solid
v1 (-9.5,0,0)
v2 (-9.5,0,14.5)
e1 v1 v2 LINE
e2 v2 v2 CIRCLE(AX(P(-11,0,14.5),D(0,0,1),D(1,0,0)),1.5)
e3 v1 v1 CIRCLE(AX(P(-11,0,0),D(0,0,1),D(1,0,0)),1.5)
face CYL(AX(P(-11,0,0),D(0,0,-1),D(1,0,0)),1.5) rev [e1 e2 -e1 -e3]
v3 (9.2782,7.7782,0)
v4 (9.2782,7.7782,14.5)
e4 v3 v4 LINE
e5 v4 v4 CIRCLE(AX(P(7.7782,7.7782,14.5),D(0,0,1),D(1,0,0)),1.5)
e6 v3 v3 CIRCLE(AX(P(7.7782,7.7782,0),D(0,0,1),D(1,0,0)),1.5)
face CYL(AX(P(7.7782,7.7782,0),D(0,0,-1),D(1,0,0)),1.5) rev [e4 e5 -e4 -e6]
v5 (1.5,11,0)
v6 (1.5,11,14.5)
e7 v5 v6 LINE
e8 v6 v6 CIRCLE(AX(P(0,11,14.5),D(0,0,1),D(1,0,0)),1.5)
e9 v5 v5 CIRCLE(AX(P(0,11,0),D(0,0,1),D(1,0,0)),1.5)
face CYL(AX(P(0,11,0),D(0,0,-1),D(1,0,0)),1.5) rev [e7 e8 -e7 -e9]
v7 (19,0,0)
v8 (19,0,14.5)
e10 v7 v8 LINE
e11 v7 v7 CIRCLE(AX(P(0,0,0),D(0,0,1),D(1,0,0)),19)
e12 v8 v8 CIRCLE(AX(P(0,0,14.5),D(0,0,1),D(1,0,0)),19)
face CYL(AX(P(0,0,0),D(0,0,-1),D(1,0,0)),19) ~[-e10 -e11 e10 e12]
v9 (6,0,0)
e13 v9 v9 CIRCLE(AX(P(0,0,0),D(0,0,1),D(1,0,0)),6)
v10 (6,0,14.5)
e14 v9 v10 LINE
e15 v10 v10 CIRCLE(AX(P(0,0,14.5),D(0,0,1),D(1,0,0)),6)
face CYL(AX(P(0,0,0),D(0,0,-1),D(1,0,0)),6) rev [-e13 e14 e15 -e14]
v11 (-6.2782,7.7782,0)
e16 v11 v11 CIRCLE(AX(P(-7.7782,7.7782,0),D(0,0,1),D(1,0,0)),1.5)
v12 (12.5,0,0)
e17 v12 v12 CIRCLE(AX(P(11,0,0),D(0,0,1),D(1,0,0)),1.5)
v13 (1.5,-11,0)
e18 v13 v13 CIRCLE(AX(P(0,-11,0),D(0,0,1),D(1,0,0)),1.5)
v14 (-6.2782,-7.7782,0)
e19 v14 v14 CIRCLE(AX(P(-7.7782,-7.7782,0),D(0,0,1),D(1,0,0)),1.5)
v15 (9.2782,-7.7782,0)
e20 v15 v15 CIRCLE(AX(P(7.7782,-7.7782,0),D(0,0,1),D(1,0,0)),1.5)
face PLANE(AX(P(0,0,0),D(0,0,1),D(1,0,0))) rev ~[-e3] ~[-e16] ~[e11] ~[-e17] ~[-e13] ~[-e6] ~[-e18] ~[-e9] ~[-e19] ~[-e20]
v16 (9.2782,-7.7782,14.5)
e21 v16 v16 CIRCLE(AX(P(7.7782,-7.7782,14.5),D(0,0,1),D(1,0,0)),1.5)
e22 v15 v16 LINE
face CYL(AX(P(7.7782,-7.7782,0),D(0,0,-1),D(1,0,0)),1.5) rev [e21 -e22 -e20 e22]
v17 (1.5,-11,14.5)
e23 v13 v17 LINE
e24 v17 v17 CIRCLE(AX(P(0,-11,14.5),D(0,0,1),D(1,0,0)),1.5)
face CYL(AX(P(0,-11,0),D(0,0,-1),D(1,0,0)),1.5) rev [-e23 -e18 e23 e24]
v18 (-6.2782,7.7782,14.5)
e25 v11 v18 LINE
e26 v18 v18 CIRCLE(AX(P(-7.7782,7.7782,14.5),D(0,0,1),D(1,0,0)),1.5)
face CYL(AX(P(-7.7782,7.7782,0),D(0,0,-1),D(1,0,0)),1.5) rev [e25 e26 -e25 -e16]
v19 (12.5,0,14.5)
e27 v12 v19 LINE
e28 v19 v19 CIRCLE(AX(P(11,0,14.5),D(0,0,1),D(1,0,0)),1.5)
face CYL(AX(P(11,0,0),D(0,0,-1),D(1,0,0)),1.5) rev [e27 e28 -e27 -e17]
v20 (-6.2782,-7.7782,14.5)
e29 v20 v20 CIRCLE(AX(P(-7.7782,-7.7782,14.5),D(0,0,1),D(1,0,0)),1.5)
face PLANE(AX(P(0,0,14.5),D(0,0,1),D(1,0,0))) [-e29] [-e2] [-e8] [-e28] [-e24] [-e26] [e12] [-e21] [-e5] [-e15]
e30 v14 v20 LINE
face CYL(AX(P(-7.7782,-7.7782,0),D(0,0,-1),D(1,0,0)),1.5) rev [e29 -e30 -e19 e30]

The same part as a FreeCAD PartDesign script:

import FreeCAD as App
import Part
import Sketcher
from FreeCAD import Vector

doc = App.newDocument("Part")
params = doc.addObject("Spreadsheet::Sheet", "Params")
for row, (alias, value) in enumerate([
    ("sketch1_diameter", "38 mm"),
    ("sketch1_diameter2", "3 mm"),
    ("sketch1_diameter3", "12 mm"),
    ("pad1_length", "14.5 mm"),
], start=1):
    params.set(f"A{row}", alias)
    params.set(f"B{row}", "=" + value)
    params.setAlias(f"B{row}", alias)

body = doc.addObject("PartDesign::Body", "Body")

sketch1 = body.newObject("Sketcher::SketchObject", "Sketch")
sketch1.AttachmentSupport = (doc.getObject("XY_Plane"), [""])
sketch1.MapMode = "FlatFace"
sketch1.addGeometry(Part.Circle(Vector(0, 0, 0), Vector(0, 0, 1), 19), False)
sketch1.addGeometry(Part.Circle(Vector(-7.8, -7.8, 0), Vector(0, 0, 1), 1.5), False)
sketch1.addGeometry(Part.Circle(Vector(0, -11, 0), Vector(0, 0, 1), 1.5), False)
sketch1.addGeometry(Part.Circle(Vector(7.8, -7.8, 0), Vector(0, 0, 1), 1.5), False)
sketch1.addGeometry(Part.Circle(Vector(-11, 0, 0), Vector(0, 0, 1), 1.5), False)
sketch1.addGeometry(Part.Circle(Vector(-7.8, 7.8, 0), Vector(0, 0, 1), 1.5), False)
sketch1.addGeometry(Part.Circle(Vector(0, 0, 0), Vector(0, 0, 1), 6), False)
sketch1.addGeometry(Part.Circle(Vector(7.8, 7.8, 0), Vector(0, 0, 1), 1.5), False)
sketch1.addGeometry(Part.Circle(Vector(11, 0, 0), Vector(0, 0, 1), 1.5), False)
sketch1.addGeometry(Part.Circle(Vector(0, 11, 0), Vector(0, 0, 1), 1.5), False)
sketch1.addConstraint(Sketcher.Constraint("Coincident", 0, 3, -1, 1))
sketch1.addConstraint(Sketcher.Constraint("Coincident", 6, 3, -1, 1))
sketch1.addConstraint(Sketcher.Constraint("Equal", 1, 2))
sketch1.addConstraint(Sketcher.Constraint("Equal", 2, 3))
sketch1.addConstraint(Sketcher.Constraint("Equal", 3, 4))
sketch1.addConstraint(Sketcher.Constraint("Equal", 4, 5))
sketch1.addConstraint(Sketcher.Constraint("Equal", 5, 7))
sketch1.addConstraint(Sketcher.Constraint("Equal", 7, 8))
sketch1.addConstraint(Sketcher.Constraint("Equal", 8, 9))
sketch1.addConstraint(Sketcher.Constraint("Symmetric", 3, 3, 5, 3, -1, 1))
sketch1.addConstraint(Sketcher.Constraint("Symmetric", 1, 3, 7, 3, -1, 1))
sketch1.addConstraint(Sketcher.Constraint("Symmetric", 4, 3, 8, 3, -1, 1))
sketch1.addConstraint(Sketcher.Constraint("Symmetric", 2, 3, 9, 3, -1, 1))
sketch1.addConstraint(Sketcher.Constraint("Symmetric", 1, 3, 3, 3, -2))
sketch1.addConstraint(Sketcher.Constraint("PointOnObject", 2, 3, -2))
sketch1.addConstraint(Sketcher.Constraint("PointOnObject", 4, 3, -1))
sketch1.addConstraint(Sketcher.Constraint("Diameter", 0, 38.0))
sketch1.addConstraint(Sketcher.Constraint("Diameter", 1, 3.0))
sketch1.addConstraint(Sketcher.Constraint("Diameter", 6, 12.0))
sketch1.addConstraint(Sketcher.Constraint("DistanceY", 2, 3, -1, 1, 11.0))
sketch1.addConstraint(Sketcher.Constraint("DistanceX", 4, 3, -1, 1, 11.0))
sketch1.addConstraint(Sketcher.Constraint("DistanceX", 1, 3, -1, 1, 7.7782))
sketch1.addConstraint(Sketcher.Constraint("DistanceY", 1, 3, -1, 1, 7.7782))
sketch1.setExpression("Constraints[16]", "Params.sketch1_diameter")
sketch1.setExpression("Constraints[17]", "Params.sketch1_diameter2")
sketch1.setExpression("Constraints[18]", "Params.sketch1_diameter3")
pad1 = body.newObject("PartDesign::Pad", "Pad")
pad1.Profile = sketch1
pad1.setExpression("Length", "Params.pad1_length")

doc.recompute()
